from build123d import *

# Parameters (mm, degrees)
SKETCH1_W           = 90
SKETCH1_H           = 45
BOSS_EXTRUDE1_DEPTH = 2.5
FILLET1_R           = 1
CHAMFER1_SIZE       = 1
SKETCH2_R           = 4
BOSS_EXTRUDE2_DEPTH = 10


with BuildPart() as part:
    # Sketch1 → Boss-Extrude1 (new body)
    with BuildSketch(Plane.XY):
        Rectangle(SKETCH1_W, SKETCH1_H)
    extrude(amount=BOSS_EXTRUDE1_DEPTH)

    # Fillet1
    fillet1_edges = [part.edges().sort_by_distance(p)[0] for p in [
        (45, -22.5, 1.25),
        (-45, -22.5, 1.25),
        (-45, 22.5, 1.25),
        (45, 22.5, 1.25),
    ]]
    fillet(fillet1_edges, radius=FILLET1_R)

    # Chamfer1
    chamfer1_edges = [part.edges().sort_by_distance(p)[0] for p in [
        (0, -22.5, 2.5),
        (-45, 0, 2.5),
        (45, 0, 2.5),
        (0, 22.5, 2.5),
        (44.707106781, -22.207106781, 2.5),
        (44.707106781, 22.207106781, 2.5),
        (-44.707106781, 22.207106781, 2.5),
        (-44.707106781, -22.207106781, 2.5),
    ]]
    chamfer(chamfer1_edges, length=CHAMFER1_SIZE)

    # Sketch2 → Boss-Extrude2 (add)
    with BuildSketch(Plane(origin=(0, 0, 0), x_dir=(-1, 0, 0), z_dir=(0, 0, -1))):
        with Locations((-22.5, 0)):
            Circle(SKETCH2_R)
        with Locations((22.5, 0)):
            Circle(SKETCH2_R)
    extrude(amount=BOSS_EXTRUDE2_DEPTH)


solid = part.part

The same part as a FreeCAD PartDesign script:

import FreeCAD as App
import Part
import Sketcher

V = App.Vector
Q = App.Units.Quantity


def edges_at(feature, points):
    """Names of the edges that pass closest to the given points."""
    edges = feature.Shape.Edges
    near = lambda p: min(range(len(edges)), key=lambda i: edges[i].distToShape(Part.Vertex(*p))[0])
    return sorted({f"Edge{near(p) + 1}" for p in points})

doc = App.newDocument("Part")
body = doc.addObject("PartDesign::Body", "Body")

# Sketch on XY plane
sketch1 = body.newObject("Sketcher::SketchObject", "Sketch")
sketch1.AttachmentSupport = (doc.getObject("XY_Plane"), [""])
sketch1.MapMode = "FlatFace"
sketch1.addGeometry(Part.LineSegment(V(-45, 22.5, 0), V(-45, -22.5, 0)), False)
sketch1.addGeometry(Part.LineSegment(V(-45, -22.5, 0), V(45, -22.5, 0)), False)
sketch1.addGeometry(Part.LineSegment(V(45, -22.5, 0), V(45, 22.5, 0)), False)
sketch1.addGeometry(Part.LineSegment(V(45, 22.5, 0), V(-45, 22.5, 0)), False)
sketch1.addConstraint(Sketcher.Constraint("Coincident", 0, 2, 1, 1))
sketch1.addConstraint(Sketcher.Constraint("Coincident", 1, 2, 2, 1))
sketch1.addConstraint(Sketcher.Constraint("Coincident", 2, 2, 3, 1))
sketch1.addConstraint(Sketcher.Constraint("Coincident", 3, 2, 0, 1))
sketch1.addConstraint(Sketcher.Constraint("Vertical", 0))
sketch1.addConstraint(Sketcher.Constraint("Horizontal", 1))
sketch1.addConstraint(Sketcher.Constraint("Vertical", 2))
sketch1.addConstraint(Sketcher.Constraint("Horizontal", 3))
sketch1.addConstraint(Sketcher.Constraint("Symmetric", 0, 2, 2, 2, -1, 1))
sketch1.addConstraint(Sketcher.Constraint("DistanceX", 1, 1, 1, 2, Q("90 mm")))
sketch1.addConstraint(Sketcher.Constraint("DistanceY", 0, 2, 0, 1, Q("45 mm")))
pad1 = body.newObject("PartDesign::Pad", "Pad")
pad1.Profile = sketch1
pad1.Length = 2.5
doc.recompute()

fillet = body.newObject("PartDesign::Fillet", "Fillet")
fillet.Base = (pad1, edges_at(pad1, [
    (45, -22.5, 1.25),
    (-45, -22.5, 1.25),
    (-45, 22.5, 1.25),
    (45, 22.5, 1.25),
]))
fillet.Radius = 1
doc.recompute()

chamfer = body.newObject("PartDesign::Chamfer", "Chamfer")
chamfer.Base = (fillet, edges_at(fillet, [
    (0, -22.5, 2.5),
    (-45, 0, 2.5),
    (45, 0, 2.5),
    (0, 22.5, 2.5),
    (44.707, -22.207, 2.5),
    (44.707, 22.207, 2.5),
    (-44.707, 22.207, 2.5),
    (-44.707, -22.207, 2.5),
]))
chamfer.Size = 1

# Sketch on XY plane
sketch2 = body.newObject("Sketcher::SketchObject", "Sketch001")
sketch2.AttachmentSupport = (doc.getObject("XY_Plane"), [""])
sketch2.MapMode = "FlatFace"
sketch2.addGeometry(Part.Circle(V(22.5, 0, 0), V(0, 0, 1), 4), False)
sketch2.addGeometry(Part.Circle(V(-22.5, 0, 0), V(0, 0, 1), 4), False)
sketch2.addConstraint(Sketcher.Constraint("Equal", 0, 1))
sketch2.addConstraint(Sketcher.Constraint("Symmetric", 0, 3, 1, 3, -1, 1))
sketch2.addConstraint(Sketcher.Constraint("PointOnObject", 0, 3, -1))
sketch2.addConstraint(Sketcher.Constraint("Diameter", 0, Q("8 mm")))
sketch2.addConstraint(Sketcher.Constraint("DistanceX", 1, 3, 0, 3, Q("45 mm")))
pad2 = body.newObject("PartDesign::Pad", "Pad001")
pad2.Profile = sketch2
pad2.Length = 10
pad2.Reversed = True

doc.recompute()
